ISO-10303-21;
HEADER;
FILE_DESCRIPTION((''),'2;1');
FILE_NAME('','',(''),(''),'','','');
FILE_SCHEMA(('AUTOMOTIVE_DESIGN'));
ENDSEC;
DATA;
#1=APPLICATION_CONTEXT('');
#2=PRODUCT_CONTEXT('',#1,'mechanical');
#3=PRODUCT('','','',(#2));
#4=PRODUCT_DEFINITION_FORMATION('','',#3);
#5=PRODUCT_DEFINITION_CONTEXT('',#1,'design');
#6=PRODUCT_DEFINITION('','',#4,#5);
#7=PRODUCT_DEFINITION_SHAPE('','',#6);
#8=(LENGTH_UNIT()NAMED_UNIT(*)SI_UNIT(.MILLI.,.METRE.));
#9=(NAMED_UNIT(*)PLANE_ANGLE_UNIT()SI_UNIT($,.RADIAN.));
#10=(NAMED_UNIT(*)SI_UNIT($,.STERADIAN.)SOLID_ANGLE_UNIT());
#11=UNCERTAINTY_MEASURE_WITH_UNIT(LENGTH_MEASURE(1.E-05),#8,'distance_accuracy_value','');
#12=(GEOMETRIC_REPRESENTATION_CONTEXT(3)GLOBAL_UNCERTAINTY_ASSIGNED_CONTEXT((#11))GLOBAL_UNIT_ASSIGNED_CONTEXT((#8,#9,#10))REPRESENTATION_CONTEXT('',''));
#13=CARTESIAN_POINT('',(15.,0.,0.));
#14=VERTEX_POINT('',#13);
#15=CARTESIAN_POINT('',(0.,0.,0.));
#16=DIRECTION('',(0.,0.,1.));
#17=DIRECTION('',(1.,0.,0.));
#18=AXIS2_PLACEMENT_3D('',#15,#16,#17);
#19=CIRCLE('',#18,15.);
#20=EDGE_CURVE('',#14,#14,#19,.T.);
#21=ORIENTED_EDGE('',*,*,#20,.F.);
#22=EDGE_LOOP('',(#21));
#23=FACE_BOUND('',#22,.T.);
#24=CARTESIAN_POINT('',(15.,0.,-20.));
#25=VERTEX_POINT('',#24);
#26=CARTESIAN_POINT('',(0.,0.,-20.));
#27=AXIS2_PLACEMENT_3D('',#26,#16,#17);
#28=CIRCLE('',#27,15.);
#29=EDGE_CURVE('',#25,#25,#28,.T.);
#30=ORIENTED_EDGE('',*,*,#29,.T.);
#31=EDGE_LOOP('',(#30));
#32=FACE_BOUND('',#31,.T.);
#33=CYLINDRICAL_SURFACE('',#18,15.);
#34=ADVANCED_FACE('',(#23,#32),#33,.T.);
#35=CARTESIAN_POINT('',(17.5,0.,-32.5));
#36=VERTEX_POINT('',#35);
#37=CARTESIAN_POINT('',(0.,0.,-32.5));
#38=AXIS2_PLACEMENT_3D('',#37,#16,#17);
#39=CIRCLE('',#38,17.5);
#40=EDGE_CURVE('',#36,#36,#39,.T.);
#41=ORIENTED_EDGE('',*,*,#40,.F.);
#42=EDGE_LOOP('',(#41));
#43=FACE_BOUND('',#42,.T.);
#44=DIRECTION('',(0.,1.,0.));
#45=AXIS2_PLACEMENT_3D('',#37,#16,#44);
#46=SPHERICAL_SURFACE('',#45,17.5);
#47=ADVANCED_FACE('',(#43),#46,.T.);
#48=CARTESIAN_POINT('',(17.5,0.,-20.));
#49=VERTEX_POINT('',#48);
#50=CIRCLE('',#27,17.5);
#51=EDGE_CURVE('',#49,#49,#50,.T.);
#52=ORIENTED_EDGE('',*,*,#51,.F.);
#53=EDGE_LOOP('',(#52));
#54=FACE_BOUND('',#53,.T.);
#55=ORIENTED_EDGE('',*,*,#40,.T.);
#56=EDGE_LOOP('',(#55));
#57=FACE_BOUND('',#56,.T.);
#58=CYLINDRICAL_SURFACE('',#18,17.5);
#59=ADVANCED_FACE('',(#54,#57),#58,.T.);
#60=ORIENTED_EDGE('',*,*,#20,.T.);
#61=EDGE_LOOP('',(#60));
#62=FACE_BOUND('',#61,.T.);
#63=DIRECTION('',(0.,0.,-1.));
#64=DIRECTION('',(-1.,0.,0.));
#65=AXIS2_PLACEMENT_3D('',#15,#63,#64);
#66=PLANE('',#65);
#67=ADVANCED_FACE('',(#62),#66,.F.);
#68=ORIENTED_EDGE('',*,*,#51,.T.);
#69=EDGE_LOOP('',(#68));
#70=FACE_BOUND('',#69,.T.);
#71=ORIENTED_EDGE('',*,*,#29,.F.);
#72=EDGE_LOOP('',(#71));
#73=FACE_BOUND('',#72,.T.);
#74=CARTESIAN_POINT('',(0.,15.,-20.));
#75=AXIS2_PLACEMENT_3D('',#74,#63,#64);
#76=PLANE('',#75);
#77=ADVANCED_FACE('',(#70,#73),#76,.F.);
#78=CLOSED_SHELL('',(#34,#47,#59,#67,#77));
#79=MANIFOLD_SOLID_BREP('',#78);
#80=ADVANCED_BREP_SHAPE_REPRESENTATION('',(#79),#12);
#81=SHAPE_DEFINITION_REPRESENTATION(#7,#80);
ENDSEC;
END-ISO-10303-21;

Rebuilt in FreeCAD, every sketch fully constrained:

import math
import FreeCAD as App
import Part
import Sketcher

doc = App.newDocument("Part")
body = doc.addObject("PartDesign::Body", "Body")

# Sketch on YZ plane
sketch1 = doc.addObject("Sketcher::SketchObject", "Sketch")
body.addObject(sketch1)
sketch1.AttachmentSupport = (doc.YZ_Plane, [""])
sketch1.MapMode = "FlatFace"
sketch1.addGeometry([
    Part.LineSegment(App.Vector(15, 0, 0), App.Vector(0, 0, 0)),  # 0
    Part.LineSegment(App.Vector(0, 0, 0), App.Vector(0, -50, 0)),  # 1
    Part.ArcOfCircle(Part.Circle(App.Vector(0, -32.5, 0), App.Vector(0, 0, 1), 17.5), math.radians(-90), math.radians(0)),  # 2
    Part.LineSegment(App.Vector(17.5, -32.5, 0), App.Vector(17.5, -20, 0)),  # 3
    Part.LineSegment(App.Vector(17.5, -20, 0), App.Vector(15, -20, 0)),  # 4
    Part.LineSegment(App.Vector(15, -20, 0), App.Vector(15, 0, 0)),  # 5
], False)
sketch1.addConstraint([
    Sketcher.Constraint("Coincident", 0, 2, 1, 1),
    Sketcher.Constraint("Coincident", 1, 2, 2, 1),
    Sketcher.Constraint("Tangent", 2, 2, 3, 1),
    Sketcher.Constraint("Coincident", 3, 2, 4, 1),
    Sketcher.Constraint("Coincident", 4, 2, 5, 1),
    Sketcher.Constraint("Coincident", 5, 2, 0, 1),
    Sketcher.Constraint("Horizontal", 0),
    Sketcher.Constraint("Vertical", 1),
    Sketcher.Constraint("Vertical", 3),
    Sketcher.Constraint("Horizontal", 4),
    Sketcher.Constraint("Vertical", 5),
    Sketcher.Constraint("Coincident", 0, 2, -1, 1),
    Sketcher.Constraint("PointOnObject", 2, 3, -2),
    Sketcher.Constraint("Radius", 2, 17.5),
    Sketcher.Constraint("DistanceX", 0, 2, 0, 1, 15.0),
    Sketcher.Constraint("DistanceY", 1, 2, 1, 1, 50.0),
    Sketcher.Constraint("DistanceY", 5, 1, 5, 2, 20.0),
])
revolution = doc.addObject("PartDesign::Revolution", "Revolution")
body.addObject(revolution)
revolution.Profile = sketch1
revolution.ReferenceAxis = (sketch1, ["V_Axis"])
revolution.Angle = 360

doc.recompute()
